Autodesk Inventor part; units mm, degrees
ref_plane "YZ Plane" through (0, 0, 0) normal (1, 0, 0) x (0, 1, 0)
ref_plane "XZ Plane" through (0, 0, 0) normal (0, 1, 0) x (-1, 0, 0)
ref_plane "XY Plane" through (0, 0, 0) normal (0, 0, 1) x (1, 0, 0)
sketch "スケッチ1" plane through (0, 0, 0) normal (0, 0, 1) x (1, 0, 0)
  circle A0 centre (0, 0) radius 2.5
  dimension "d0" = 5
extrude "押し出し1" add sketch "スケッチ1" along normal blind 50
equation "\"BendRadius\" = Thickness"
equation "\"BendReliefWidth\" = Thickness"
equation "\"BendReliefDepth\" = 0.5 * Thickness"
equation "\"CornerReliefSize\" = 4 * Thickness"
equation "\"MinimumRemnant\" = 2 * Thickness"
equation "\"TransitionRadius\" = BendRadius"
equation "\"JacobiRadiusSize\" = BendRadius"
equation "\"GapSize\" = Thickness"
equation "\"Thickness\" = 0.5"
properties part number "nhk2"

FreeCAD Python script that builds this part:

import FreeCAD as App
import Part
import Sketcher

V = App.Vector

doc = App.newDocument("Part")
params = doc.addObject("Spreadsheet::Sheet", "Params")
for row, (alias, value) in enumerate([
    ("sketch1_diameter", "5 mm"),
    ("pad1_length", "50 mm"),
], start=1):
    params.set(f"A{row}", alias)
    params.set(f"B{row}", "=" + value)
    params.setAlias(f"B{row}", alias)

body = doc.addObject("PartDesign::Body", "Body")

# Sketch on XY plane
sketch1 = body.newObject("Sketcher::SketchObject", "Sketch")
sketch1.AttachmentSupport = (doc.getObject("XY_Plane"), [""])
sketch1.MapMode = "FlatFace"
sketch1.addGeometry(Part.Circle(V(0, 0, 0), V(0, 0, 1), 2.5), False)
sketch1.addConstraint([
    Sketcher.Constraint("Coincident", 0, 3, -1, 1),
    Sketcher.Constraint("Diameter", 0, 5.0),
])
sketch1.setExpression("Constraints[1]", "Params.sketch1_diameter")
pad1 = body.newObject("PartDesign::Pad", "Pad")
pad1.Profile = sketch1
pad1.setExpression("Length", "Params.pad1_length")

doc.recompute()
